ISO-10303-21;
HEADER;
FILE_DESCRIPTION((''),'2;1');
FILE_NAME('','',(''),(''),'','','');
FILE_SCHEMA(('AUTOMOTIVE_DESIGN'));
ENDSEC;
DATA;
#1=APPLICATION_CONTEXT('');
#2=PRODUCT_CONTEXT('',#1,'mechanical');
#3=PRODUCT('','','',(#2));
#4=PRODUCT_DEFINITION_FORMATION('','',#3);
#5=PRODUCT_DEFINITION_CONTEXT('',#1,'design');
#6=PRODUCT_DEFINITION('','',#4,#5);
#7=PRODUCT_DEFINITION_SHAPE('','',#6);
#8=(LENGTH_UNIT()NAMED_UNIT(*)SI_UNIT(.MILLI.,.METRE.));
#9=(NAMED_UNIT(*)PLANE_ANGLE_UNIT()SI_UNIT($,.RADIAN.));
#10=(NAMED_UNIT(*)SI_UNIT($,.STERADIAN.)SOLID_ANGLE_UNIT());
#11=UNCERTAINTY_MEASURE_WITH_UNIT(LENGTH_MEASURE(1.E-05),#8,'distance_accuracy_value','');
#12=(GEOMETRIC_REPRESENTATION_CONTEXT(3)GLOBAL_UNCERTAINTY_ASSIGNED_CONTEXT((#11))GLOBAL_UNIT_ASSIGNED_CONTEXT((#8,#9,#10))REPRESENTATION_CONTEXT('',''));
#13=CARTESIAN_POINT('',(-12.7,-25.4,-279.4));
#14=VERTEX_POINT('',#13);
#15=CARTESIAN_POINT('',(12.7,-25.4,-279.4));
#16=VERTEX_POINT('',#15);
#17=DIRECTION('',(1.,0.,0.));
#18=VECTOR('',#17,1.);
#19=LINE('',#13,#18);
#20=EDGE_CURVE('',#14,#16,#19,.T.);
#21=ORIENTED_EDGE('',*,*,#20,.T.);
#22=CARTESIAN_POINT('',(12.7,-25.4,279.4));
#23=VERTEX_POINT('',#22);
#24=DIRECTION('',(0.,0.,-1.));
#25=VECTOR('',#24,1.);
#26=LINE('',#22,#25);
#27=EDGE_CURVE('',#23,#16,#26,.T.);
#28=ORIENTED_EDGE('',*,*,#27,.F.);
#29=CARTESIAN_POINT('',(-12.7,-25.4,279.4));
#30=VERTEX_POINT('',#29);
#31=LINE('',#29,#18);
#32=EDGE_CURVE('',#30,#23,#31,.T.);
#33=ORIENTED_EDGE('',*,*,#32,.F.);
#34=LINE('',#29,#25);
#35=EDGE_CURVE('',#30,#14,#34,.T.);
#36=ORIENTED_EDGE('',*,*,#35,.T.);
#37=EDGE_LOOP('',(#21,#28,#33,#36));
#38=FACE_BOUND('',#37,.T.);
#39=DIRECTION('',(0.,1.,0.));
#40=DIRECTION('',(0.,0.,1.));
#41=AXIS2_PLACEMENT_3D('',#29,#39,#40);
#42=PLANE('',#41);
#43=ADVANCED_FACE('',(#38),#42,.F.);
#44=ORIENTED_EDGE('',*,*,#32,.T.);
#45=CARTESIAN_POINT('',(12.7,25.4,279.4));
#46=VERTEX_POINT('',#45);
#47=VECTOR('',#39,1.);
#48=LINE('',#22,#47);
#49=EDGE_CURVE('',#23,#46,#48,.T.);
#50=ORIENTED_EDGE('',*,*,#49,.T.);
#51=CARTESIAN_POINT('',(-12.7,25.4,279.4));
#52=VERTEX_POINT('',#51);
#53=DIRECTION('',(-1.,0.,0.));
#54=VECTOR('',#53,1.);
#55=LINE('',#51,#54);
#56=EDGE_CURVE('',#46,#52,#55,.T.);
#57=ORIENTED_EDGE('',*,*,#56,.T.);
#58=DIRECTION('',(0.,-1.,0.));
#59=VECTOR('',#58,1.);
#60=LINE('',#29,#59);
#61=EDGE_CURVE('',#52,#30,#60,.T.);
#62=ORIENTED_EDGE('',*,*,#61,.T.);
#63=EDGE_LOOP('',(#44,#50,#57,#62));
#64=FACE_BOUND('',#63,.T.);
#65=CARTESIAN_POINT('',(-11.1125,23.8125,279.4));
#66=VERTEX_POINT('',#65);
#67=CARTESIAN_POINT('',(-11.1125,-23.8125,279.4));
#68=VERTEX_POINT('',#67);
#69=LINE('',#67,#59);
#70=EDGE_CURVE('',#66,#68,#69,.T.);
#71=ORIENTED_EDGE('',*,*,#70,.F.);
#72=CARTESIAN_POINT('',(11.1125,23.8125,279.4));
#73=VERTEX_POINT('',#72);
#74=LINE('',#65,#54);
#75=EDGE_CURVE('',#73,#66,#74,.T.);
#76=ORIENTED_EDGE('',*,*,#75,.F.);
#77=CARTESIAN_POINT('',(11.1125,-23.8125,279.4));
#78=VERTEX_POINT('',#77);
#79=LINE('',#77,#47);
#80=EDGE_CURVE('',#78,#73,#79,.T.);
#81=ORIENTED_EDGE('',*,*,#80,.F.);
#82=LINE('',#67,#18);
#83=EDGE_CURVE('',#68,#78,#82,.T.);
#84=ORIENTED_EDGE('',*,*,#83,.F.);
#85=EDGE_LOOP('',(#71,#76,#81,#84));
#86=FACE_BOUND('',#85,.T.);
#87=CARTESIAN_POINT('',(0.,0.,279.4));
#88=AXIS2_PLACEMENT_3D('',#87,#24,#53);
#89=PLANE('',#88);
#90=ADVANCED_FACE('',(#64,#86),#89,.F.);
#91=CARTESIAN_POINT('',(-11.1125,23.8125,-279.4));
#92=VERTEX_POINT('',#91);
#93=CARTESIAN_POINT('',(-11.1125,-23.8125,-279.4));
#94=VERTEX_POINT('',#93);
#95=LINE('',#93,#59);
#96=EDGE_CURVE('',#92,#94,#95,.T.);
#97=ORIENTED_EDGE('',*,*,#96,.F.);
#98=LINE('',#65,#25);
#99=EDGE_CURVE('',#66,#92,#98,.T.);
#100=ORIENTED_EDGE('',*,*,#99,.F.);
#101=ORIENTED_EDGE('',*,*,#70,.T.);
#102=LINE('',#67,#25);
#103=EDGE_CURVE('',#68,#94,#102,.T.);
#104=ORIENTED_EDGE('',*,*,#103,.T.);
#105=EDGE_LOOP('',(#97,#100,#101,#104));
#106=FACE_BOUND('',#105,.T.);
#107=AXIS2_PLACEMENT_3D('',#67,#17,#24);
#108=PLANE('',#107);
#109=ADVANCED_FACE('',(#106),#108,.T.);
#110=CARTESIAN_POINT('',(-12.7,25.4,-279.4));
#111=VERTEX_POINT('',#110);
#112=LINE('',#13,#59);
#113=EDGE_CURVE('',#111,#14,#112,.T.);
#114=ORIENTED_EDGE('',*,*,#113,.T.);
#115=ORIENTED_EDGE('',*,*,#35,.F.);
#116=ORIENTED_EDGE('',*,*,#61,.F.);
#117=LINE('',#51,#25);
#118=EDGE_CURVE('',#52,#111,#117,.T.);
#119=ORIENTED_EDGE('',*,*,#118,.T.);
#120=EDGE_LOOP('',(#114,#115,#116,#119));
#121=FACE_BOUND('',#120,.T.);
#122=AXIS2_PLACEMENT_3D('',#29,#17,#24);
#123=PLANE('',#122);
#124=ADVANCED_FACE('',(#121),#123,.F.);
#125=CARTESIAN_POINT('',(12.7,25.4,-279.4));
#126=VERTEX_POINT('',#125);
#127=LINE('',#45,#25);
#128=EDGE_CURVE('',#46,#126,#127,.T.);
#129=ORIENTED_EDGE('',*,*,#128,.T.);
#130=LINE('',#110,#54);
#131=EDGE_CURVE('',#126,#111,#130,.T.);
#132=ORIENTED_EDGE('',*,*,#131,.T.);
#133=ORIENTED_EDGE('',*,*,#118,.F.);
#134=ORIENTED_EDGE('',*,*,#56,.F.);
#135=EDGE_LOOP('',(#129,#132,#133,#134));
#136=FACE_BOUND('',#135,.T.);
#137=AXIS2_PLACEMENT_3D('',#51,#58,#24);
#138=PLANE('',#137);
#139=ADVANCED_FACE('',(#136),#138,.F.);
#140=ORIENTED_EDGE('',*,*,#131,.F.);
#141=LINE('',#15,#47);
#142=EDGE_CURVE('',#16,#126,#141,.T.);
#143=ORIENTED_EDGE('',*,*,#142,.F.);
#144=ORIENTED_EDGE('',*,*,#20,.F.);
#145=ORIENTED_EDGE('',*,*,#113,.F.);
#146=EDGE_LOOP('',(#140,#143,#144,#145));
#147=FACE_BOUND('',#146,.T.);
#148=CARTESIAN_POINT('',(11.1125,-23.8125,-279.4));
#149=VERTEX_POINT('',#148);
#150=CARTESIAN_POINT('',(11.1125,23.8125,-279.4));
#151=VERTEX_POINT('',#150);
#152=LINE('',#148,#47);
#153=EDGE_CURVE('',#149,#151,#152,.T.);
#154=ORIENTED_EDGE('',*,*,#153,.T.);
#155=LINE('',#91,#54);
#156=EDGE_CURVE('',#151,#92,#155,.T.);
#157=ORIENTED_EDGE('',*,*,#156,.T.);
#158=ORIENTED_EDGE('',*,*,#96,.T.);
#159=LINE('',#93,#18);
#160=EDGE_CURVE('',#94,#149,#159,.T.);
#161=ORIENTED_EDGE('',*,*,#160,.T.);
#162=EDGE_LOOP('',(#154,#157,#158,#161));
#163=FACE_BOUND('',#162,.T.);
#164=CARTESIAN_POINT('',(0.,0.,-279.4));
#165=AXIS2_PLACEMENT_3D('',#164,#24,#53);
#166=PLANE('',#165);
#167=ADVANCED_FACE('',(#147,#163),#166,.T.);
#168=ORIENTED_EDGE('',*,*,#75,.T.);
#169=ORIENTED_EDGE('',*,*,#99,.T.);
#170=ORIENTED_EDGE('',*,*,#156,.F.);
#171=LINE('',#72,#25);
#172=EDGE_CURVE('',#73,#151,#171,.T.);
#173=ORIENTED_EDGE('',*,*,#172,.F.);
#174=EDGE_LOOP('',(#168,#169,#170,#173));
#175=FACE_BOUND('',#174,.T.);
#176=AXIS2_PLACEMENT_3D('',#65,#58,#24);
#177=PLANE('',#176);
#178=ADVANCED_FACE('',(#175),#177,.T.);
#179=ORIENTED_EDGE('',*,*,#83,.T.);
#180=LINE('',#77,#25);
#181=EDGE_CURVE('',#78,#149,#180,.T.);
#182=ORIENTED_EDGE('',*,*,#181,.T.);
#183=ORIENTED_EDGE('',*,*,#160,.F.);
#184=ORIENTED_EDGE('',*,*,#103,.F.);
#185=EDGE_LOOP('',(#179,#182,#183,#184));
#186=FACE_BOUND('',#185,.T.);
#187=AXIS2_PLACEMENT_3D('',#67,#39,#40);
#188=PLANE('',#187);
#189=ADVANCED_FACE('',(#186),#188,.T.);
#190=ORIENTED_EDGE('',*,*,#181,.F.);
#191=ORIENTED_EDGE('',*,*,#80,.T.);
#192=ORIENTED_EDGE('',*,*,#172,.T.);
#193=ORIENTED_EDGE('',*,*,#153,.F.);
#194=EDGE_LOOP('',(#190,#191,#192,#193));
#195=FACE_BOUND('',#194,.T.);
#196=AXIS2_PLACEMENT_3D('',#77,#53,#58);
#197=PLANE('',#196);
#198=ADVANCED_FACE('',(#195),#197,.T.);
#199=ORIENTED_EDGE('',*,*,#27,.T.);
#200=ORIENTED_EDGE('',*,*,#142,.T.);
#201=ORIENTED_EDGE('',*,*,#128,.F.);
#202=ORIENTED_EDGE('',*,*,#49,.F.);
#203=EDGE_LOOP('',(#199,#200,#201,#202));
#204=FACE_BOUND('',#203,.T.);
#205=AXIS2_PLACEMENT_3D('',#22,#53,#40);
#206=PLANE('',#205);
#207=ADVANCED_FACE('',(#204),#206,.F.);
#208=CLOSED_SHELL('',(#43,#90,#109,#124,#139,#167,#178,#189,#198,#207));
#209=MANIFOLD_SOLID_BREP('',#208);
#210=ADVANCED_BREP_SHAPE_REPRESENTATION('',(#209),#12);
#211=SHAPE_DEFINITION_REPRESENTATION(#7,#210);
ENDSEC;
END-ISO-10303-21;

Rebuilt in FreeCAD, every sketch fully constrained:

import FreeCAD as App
import Part
import Sketcher

V = App.Vector
Q = App.Units.Quantity

doc = App.newDocument("Part")
body = doc.addObject("PartDesign::Body", "Body")

# Sketch on XY plane
sketch1 = doc.addObject("Sketcher::SketchObject", "Sketch")
body.addObject(sketch1)
sketch1.AttachmentSupport = (doc.XY_Plane, [""])
sketch1.MapMode = "FlatFace"
sketch1.addGeometry(Part.LineSegment(V(-13, 25, 0), V(-13, -25, 0)), False)
sketch1.addGeometry(Part.LineSegment(V(-13, -25, 0), V(13, -25, 0)), False)
sketch1.addGeometry(Part.LineSegment(V(13, -25, 0), V(13, 25, 0)), False)
sketch1.addGeometry(Part.LineSegment(V(13, 25, 0), V(-13, 25, 0)), False)
sketch1.addGeometry(Part.LineSegment(V(11, -24, 0), V(-11, -24, 0)), False)
sketch1.addGeometry(Part.LineSegment(V(-11, -24, 0), V(-11, 24, 0)), False)
sketch1.addGeometry(Part.LineSegment(V(-11, 24, 0), V(11, 24, 0)), False)
sketch1.addGeometry(Part.LineSegment(V(11, 24, 0), V(11, -24, 0)), False)
sketch1.addConstraint(Sketcher.Constraint("Coincident", 0, 2, 1, 1))
sketch1.addConstraint(Sketcher.Constraint("Coincident", 1, 2, 2, 1))
sketch1.addConstraint(Sketcher.Constraint("Coincident", 2, 2, 3, 1))
sketch1.addConstraint(Sketcher.Constraint("Coincident", 3, 2, 0, 1))
sketch1.addConstraint(Sketcher.Constraint("Coincident", 4, 2, 5, 1))
sketch1.addConstraint(Sketcher.Constraint("Coincident", 5, 2, 6, 1))
sketch1.addConstraint(Sketcher.Constraint("Coincident", 6, 2, 7, 1))
sketch1.addConstraint(Sketcher.Constraint("Coincident", 7, 2, 4, 1))
sketch1.addConstraint(Sketcher.Constraint("Vertical", 0))
sketch1.addConstraint(Sketcher.Constraint("Horizontal", 1))
sketch1.addConstraint(Sketcher.Constraint("Vertical", 2))
sketch1.addConstraint(Sketcher.Constraint("Horizontal", 3))
sketch1.addConstraint(Sketcher.Constraint("Horizontal", 4))
sketch1.addConstraint(Sketcher.Constraint("Vertical", 5))
sketch1.addConstraint(Sketcher.Constraint("Horizontal", 6))
sketch1.addConstraint(Sketcher.Constraint("Vertical", 7))
sketch1.addConstraint(Sketcher.Constraint("Symmetric", 0, 2, 2, 2, -1, 1))
sketch1.addConstraint(Sketcher.Constraint("Symmetric", 4, 2, 6, 2, -1, 1))
sketch1.addConstraint(Sketcher.Constraint("DistanceX", 1, 1, 1, 2, Q("1 in")))
sketch1.addConstraint(Sketcher.Constraint("DistanceY", 0, 2, 0, 1, Q("2 in")))
sketch1.addConstraint(Sketcher.Constraint("DistanceX", 4, 2, 4, 1, Q("0.875 in")))
sketch1.addConstraint(Sketcher.Constraint("DistanceY", 5, 1, 5, 2, Q("1.875 in")))
pad1 = doc.addObject("PartDesign::Pad", "Pad")
body.addObject(pad1)
pad1.Profile = sketch1
pad1.Length = Q("22 in")
pad1.Midplane = True

doc.recompute()
